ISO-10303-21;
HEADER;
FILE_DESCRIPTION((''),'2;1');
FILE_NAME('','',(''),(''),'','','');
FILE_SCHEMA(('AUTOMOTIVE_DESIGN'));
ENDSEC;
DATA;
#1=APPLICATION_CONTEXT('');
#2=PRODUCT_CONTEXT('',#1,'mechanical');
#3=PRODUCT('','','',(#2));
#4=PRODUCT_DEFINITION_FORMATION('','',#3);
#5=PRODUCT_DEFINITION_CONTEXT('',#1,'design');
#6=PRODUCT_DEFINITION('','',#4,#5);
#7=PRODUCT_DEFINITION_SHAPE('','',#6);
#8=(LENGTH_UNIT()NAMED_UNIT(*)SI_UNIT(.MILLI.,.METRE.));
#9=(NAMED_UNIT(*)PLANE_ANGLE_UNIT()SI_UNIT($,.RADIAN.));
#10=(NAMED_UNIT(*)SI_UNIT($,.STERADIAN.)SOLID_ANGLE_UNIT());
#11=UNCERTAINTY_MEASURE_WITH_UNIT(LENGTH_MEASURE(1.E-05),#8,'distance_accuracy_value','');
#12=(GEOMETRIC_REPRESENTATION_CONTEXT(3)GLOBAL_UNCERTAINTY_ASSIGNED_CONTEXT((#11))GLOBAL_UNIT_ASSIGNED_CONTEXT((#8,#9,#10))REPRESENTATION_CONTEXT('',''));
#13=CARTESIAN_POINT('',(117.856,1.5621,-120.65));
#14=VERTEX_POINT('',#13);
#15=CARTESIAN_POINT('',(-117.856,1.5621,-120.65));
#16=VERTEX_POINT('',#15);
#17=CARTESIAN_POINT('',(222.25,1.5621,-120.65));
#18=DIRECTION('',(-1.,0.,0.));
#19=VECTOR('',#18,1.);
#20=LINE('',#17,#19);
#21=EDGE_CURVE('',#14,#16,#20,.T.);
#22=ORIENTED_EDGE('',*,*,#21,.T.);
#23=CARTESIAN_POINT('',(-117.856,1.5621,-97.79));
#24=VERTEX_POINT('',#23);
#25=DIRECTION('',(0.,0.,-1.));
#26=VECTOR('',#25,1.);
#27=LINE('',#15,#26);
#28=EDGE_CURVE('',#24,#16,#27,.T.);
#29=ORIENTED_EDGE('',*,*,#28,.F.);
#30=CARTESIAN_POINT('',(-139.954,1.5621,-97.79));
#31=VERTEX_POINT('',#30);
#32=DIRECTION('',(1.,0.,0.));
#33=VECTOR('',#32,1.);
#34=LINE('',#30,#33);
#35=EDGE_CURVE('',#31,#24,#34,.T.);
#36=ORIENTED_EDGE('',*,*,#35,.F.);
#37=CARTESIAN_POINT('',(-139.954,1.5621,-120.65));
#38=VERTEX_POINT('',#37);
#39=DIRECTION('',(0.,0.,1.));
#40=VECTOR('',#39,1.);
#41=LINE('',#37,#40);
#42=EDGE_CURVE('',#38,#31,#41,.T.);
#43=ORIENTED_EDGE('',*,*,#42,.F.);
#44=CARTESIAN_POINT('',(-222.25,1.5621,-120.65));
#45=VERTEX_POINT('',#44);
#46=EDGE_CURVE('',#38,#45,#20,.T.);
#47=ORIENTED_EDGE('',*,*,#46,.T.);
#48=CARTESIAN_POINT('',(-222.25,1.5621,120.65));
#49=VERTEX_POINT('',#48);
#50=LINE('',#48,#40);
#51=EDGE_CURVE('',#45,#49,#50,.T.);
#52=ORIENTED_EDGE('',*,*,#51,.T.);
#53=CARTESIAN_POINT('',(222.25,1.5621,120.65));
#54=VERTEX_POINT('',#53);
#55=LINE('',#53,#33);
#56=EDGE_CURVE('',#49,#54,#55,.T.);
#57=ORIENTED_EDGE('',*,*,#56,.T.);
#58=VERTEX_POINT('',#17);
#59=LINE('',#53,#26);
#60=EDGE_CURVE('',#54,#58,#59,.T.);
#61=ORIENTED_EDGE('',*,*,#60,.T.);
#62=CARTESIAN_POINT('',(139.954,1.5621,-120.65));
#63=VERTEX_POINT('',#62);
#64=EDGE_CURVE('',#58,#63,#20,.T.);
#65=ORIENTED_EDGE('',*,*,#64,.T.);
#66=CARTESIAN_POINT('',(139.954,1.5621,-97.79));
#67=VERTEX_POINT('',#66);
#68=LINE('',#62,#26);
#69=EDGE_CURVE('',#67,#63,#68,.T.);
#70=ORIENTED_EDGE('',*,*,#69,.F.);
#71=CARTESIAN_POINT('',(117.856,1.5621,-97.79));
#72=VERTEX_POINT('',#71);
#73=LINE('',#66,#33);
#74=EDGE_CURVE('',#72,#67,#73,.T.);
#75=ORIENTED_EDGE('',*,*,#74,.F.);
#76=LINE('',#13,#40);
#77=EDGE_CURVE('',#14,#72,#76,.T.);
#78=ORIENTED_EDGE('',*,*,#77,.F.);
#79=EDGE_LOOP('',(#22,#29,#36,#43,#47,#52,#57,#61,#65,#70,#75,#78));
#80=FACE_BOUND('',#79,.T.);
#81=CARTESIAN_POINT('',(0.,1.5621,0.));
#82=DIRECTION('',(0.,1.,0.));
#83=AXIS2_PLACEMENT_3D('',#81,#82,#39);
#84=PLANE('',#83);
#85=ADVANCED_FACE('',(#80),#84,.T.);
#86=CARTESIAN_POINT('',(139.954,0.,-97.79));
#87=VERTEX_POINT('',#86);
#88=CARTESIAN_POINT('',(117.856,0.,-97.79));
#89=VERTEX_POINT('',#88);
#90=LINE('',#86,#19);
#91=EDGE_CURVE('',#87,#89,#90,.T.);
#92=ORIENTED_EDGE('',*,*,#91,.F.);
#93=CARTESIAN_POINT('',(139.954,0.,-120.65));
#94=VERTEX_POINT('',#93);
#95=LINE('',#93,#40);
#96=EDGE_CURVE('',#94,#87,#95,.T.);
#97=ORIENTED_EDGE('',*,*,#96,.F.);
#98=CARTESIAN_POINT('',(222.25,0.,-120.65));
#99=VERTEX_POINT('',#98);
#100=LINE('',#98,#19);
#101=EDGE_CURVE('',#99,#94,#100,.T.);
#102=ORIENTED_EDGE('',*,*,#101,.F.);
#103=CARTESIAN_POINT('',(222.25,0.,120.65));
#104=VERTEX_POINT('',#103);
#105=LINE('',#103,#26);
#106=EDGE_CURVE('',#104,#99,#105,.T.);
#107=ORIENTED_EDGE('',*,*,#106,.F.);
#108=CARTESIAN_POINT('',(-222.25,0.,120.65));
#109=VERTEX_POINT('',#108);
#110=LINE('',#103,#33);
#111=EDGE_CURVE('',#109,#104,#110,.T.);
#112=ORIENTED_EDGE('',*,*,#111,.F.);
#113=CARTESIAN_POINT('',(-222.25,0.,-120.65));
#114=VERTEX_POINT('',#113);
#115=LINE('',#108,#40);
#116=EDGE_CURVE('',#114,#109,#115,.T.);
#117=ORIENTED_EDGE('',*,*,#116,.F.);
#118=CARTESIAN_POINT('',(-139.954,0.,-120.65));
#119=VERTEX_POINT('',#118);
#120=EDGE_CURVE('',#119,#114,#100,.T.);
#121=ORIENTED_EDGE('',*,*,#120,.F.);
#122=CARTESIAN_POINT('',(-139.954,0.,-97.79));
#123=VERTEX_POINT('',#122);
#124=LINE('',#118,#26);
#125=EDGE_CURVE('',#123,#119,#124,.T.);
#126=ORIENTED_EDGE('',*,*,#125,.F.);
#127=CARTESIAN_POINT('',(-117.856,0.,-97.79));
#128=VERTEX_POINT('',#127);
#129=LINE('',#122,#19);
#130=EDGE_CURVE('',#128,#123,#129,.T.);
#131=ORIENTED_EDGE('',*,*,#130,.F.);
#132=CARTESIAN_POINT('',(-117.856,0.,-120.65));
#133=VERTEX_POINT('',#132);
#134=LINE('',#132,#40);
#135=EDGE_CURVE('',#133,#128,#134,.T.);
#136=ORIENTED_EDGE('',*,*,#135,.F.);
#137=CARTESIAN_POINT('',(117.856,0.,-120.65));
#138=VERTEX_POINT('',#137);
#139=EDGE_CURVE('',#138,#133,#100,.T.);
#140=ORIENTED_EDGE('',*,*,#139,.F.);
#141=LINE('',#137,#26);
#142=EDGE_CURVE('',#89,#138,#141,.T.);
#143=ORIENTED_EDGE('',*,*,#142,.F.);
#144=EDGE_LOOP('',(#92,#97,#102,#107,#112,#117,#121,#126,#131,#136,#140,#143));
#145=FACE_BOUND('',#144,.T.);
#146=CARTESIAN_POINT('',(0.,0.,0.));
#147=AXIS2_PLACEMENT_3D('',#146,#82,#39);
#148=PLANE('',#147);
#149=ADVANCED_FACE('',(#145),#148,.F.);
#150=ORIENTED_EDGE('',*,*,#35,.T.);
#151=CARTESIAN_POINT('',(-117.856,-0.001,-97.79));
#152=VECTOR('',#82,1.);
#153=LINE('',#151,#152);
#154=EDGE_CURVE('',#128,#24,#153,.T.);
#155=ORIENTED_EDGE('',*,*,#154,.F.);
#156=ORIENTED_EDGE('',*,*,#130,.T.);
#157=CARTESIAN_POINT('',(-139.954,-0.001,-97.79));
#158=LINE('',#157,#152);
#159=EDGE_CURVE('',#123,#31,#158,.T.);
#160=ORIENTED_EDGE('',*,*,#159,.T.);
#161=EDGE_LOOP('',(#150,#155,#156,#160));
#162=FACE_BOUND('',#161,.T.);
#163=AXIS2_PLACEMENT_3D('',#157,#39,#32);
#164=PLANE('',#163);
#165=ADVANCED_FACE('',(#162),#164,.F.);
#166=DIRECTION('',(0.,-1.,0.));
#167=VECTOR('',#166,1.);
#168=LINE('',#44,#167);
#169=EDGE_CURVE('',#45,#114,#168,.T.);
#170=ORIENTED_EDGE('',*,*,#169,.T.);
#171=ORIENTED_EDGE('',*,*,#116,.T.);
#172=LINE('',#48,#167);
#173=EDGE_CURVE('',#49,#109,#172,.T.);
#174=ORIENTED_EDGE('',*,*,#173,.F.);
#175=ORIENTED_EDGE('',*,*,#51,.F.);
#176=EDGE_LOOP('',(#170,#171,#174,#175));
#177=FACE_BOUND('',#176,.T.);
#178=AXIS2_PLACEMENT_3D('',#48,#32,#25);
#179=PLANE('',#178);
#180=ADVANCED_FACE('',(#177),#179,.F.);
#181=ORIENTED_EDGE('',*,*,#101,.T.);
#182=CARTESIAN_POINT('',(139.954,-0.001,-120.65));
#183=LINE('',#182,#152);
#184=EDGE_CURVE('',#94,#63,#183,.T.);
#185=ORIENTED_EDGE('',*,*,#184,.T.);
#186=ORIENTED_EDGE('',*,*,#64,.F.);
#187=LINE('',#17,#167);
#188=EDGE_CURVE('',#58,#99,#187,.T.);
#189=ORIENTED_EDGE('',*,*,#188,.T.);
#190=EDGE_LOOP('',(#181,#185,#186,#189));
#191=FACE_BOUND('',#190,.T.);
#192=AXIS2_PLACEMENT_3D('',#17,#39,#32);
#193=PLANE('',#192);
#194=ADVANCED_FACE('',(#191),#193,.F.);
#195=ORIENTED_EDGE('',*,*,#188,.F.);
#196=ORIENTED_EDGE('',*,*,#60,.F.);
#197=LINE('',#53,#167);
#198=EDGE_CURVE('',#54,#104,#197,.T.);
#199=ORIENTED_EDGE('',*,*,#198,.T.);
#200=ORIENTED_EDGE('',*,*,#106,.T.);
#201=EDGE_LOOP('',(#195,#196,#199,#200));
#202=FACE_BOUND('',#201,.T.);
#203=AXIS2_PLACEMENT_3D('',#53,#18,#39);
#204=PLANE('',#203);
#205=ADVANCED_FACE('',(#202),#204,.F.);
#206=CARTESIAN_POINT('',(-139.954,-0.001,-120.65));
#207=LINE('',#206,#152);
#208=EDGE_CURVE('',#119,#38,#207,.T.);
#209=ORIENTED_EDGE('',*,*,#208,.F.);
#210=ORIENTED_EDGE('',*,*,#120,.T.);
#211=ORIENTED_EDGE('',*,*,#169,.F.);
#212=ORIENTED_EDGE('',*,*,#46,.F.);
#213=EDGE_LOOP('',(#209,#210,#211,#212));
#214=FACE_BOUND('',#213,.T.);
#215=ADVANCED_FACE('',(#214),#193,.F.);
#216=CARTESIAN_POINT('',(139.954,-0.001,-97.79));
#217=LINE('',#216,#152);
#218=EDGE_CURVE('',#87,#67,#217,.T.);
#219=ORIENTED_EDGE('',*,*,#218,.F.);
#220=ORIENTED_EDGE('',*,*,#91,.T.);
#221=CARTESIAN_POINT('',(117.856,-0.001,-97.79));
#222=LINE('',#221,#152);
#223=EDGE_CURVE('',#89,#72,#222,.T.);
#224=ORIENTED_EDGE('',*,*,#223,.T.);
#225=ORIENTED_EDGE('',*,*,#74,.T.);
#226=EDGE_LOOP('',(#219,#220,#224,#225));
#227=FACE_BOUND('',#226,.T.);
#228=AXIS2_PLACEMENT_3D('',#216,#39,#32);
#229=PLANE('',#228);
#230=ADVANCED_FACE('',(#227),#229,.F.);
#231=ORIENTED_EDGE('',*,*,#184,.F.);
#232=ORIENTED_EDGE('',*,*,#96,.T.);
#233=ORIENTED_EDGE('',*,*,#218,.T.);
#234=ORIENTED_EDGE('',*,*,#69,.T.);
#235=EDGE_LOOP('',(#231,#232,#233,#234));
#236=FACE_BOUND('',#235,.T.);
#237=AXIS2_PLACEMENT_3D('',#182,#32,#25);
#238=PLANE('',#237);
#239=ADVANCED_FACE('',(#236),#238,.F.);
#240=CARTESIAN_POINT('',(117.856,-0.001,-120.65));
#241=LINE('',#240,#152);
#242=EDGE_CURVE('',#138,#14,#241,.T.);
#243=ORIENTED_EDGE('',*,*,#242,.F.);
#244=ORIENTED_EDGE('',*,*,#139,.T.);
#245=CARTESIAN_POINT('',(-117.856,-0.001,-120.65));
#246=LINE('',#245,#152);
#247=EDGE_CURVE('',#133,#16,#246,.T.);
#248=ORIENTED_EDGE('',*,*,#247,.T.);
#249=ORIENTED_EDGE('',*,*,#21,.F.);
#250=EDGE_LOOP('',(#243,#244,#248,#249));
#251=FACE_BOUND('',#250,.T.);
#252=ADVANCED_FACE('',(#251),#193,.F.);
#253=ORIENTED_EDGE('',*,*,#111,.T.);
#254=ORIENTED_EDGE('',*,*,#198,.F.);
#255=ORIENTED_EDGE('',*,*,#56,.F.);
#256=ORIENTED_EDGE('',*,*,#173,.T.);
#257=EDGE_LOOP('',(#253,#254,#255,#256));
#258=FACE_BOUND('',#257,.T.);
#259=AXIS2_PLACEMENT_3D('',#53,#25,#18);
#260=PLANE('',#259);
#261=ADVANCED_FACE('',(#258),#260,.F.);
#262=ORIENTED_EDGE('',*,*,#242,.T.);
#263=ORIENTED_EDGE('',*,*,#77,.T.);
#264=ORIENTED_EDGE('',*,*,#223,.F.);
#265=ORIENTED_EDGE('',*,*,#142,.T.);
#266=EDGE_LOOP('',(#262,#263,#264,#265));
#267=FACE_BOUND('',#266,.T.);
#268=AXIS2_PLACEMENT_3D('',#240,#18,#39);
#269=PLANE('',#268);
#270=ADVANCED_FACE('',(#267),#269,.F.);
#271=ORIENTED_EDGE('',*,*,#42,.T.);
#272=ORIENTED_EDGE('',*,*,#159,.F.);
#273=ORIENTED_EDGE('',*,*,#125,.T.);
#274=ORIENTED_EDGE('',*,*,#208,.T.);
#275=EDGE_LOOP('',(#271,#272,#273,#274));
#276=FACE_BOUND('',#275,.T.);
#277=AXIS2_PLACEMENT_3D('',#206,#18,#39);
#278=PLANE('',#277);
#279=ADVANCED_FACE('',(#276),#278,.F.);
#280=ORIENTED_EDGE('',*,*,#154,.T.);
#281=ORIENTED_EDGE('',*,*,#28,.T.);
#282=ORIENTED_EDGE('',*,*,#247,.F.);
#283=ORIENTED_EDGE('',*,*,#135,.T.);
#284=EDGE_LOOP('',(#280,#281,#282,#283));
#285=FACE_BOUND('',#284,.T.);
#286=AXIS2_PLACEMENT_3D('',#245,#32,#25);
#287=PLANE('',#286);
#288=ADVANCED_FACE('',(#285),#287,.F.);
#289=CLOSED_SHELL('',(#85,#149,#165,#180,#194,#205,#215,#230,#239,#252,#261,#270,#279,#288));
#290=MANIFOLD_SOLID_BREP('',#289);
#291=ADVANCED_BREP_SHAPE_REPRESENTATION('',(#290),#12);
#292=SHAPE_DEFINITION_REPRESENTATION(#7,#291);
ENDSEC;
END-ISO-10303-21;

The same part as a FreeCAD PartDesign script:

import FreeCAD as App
import Part
import Sketcher
from FreeCAD import Vector
Q = App.Units.Quantity


def add_polygon(sketch, points):
    """Adds a closed chain of lines whose ends are joined by coincident constraints."""
    first, n = sketch.GeometryCount, len(points)
    for a, b in zip(points, points[1:] + points[:1]):
        sketch.addGeometry(Part.LineSegment(App.Vector(*a, 0), App.Vector(*b, 0)), False)
    for i in range(n):
        sketch.addConstraint(Sketcher.Constraint("Coincident", first + i, 2, first + (i + 1) % n, 1))

doc = App.newDocument("Part")
params = doc.addObject("Spreadsheet::Sheet", "Params")
for row, (alias, value) in enumerate([
    ("sketch1_width", "17.5 in"),
    ("sketch1_height", "9.5 in"),
    ("pad1_length", "0.0615 in"),
    ("sketch2_height", "0.9 in"),
    ("sketch2_width", "0.87 in"),
    ("sketch3_height", "0.9 in"),
    ("sketch3_width", "0.87 in"),
], start=1):
    params.set(f"A{row}", alias)
    params.set(f"B{row}", "=" + value)
    params.setAlias(f"B{row}", alias)

body = doc.addObject("PartDesign::Body", "Body")

sketch1 = body.newObject("Sketcher::SketchObject", "Sketch")
sketch1.AttachmentSupport = (doc.getObject("XZ_Plane"), [""])
sketch1.MapMode = "FlatFace"
add_polygon(sketch1, [(-222.25, -120.65), (-222.25, 120.65), (222.25, 120.65), (222.25, -120.65)])
sketch1.addConstraint([
    Sketcher.Constraint("Vertical", 0),
    Sketcher.Constraint("Horizontal", 1),
    Sketcher.Constraint("Vertical", 2),
    Sketcher.Constraint("Horizontal", 3),
    Sketcher.Constraint("Symmetric", 0, 2, 2, 2, -1, 1),
    Sketcher.Constraint("DistanceX", 1, 1, 1, 2, Q("17.5 in")),
    Sketcher.Constraint("DistanceY", 0, 1, 0, 2, Q("9.5 in")),
])
sketch1.setExpression("Constraints[9]", "Params.sketch1_width")
sketch1.setExpression("Constraints[10]", "Params.sketch1_height")
pad1 = body.newObject("PartDesign::Pad", "Pad")
pad1.Profile = sketch1
pad1.setExpression("Length", "Params.pad1_length")
pad1.Reversed = True

sketch2 = body.newObject("Sketcher::SketchObject", "Sketch001")
sketch2.AttachmentSupport = (doc.getObject("XZ_Plane"), [""])
sketch2.MapMode = "FlatFace"
sketch2.AttachmentOffset = App.Placement(Vector(0, 0, -0.0615 * 25.4), App.Rotation())
add_polygon(sketch2, [(-139.954, -120.65), (-139.954, -97.79), (-117.856, -97.79), (-117.856, -120.65)])
sketch2.addConstraint([
    Sketcher.Constraint("Vertical", 0),
    Sketcher.Constraint("Horizontal", 1),
    Sketcher.Constraint("Vertical", 2),
    Sketcher.Constraint("Horizontal", 3),
    Sketcher.Constraint("DistanceY", 0, 1, 0, 2, Q("0.9 in")),
    Sketcher.Constraint("DistanceX", 1, 1, 1, 2, Q("0.87 in")),
    Sketcher.Constraint("DistanceX", 0, 2, -1, 1, Q("5.51 in")),
    Sketcher.Constraint("DistanceY", 0, 2, -1, 1, Q("3.85 in")),
])
sketch2.setExpression("Constraints[8]", "Params.sketch2_height")
sketch2.setExpression("Constraints[9]", "Params.sketch2_width")
pocket1 = body.newObject("PartDesign::Pocket", "Pocket")
pocket1.Profile = sketch2
pocket1.Type = "UpToFirst"
pocket1.Reversed = True

sketch3 = body.newObject("Sketcher::SketchObject", "Sketch002")
sketch3.AttachmentSupport = (doc.getObject("XZ_Plane"), [""])
sketch3.MapMode = "FlatFace"
sketch3.AttachmentOffset = App.Placement(Vector(0, 0, -0.0615 * 25.4), App.Rotation())
add_polygon(sketch3, [(117.856, -120.65), (117.856, -97.79), (139.954, -97.79), (139.954, -120.65)])
sketch3.addConstraint([
    Sketcher.Constraint("Vertical", 0),
    Sketcher.Constraint("Horizontal", 1),
    Sketcher.Constraint("Vertical", 2),
    Sketcher.Constraint("Horizontal", 3),
    Sketcher.Constraint("DistanceY", 0, 1, 0, 2, Q("0.9 in")),
    Sketcher.Constraint("DistanceX", 1, 1, 1, 2, Q("0.87 in")),
    Sketcher.Constraint("DistanceX", -1, 1, 0, 2, Q("4.64 in")),
    Sketcher.Constraint("DistanceY", 0, 2, -1, 1, Q("3.85 in")),
])
sketch3.setExpression("Constraints[8]", "Params.sketch3_height")
sketch3.setExpression("Constraints[9]", "Params.sketch3_width")
pocket2 = body.newObject("PartDesign::Pocket", "Pocket001")
pocket2.Profile = sketch3
pocket2.Type = "UpToFirst"
pocket2.Reversed = True

doc.recompute()
